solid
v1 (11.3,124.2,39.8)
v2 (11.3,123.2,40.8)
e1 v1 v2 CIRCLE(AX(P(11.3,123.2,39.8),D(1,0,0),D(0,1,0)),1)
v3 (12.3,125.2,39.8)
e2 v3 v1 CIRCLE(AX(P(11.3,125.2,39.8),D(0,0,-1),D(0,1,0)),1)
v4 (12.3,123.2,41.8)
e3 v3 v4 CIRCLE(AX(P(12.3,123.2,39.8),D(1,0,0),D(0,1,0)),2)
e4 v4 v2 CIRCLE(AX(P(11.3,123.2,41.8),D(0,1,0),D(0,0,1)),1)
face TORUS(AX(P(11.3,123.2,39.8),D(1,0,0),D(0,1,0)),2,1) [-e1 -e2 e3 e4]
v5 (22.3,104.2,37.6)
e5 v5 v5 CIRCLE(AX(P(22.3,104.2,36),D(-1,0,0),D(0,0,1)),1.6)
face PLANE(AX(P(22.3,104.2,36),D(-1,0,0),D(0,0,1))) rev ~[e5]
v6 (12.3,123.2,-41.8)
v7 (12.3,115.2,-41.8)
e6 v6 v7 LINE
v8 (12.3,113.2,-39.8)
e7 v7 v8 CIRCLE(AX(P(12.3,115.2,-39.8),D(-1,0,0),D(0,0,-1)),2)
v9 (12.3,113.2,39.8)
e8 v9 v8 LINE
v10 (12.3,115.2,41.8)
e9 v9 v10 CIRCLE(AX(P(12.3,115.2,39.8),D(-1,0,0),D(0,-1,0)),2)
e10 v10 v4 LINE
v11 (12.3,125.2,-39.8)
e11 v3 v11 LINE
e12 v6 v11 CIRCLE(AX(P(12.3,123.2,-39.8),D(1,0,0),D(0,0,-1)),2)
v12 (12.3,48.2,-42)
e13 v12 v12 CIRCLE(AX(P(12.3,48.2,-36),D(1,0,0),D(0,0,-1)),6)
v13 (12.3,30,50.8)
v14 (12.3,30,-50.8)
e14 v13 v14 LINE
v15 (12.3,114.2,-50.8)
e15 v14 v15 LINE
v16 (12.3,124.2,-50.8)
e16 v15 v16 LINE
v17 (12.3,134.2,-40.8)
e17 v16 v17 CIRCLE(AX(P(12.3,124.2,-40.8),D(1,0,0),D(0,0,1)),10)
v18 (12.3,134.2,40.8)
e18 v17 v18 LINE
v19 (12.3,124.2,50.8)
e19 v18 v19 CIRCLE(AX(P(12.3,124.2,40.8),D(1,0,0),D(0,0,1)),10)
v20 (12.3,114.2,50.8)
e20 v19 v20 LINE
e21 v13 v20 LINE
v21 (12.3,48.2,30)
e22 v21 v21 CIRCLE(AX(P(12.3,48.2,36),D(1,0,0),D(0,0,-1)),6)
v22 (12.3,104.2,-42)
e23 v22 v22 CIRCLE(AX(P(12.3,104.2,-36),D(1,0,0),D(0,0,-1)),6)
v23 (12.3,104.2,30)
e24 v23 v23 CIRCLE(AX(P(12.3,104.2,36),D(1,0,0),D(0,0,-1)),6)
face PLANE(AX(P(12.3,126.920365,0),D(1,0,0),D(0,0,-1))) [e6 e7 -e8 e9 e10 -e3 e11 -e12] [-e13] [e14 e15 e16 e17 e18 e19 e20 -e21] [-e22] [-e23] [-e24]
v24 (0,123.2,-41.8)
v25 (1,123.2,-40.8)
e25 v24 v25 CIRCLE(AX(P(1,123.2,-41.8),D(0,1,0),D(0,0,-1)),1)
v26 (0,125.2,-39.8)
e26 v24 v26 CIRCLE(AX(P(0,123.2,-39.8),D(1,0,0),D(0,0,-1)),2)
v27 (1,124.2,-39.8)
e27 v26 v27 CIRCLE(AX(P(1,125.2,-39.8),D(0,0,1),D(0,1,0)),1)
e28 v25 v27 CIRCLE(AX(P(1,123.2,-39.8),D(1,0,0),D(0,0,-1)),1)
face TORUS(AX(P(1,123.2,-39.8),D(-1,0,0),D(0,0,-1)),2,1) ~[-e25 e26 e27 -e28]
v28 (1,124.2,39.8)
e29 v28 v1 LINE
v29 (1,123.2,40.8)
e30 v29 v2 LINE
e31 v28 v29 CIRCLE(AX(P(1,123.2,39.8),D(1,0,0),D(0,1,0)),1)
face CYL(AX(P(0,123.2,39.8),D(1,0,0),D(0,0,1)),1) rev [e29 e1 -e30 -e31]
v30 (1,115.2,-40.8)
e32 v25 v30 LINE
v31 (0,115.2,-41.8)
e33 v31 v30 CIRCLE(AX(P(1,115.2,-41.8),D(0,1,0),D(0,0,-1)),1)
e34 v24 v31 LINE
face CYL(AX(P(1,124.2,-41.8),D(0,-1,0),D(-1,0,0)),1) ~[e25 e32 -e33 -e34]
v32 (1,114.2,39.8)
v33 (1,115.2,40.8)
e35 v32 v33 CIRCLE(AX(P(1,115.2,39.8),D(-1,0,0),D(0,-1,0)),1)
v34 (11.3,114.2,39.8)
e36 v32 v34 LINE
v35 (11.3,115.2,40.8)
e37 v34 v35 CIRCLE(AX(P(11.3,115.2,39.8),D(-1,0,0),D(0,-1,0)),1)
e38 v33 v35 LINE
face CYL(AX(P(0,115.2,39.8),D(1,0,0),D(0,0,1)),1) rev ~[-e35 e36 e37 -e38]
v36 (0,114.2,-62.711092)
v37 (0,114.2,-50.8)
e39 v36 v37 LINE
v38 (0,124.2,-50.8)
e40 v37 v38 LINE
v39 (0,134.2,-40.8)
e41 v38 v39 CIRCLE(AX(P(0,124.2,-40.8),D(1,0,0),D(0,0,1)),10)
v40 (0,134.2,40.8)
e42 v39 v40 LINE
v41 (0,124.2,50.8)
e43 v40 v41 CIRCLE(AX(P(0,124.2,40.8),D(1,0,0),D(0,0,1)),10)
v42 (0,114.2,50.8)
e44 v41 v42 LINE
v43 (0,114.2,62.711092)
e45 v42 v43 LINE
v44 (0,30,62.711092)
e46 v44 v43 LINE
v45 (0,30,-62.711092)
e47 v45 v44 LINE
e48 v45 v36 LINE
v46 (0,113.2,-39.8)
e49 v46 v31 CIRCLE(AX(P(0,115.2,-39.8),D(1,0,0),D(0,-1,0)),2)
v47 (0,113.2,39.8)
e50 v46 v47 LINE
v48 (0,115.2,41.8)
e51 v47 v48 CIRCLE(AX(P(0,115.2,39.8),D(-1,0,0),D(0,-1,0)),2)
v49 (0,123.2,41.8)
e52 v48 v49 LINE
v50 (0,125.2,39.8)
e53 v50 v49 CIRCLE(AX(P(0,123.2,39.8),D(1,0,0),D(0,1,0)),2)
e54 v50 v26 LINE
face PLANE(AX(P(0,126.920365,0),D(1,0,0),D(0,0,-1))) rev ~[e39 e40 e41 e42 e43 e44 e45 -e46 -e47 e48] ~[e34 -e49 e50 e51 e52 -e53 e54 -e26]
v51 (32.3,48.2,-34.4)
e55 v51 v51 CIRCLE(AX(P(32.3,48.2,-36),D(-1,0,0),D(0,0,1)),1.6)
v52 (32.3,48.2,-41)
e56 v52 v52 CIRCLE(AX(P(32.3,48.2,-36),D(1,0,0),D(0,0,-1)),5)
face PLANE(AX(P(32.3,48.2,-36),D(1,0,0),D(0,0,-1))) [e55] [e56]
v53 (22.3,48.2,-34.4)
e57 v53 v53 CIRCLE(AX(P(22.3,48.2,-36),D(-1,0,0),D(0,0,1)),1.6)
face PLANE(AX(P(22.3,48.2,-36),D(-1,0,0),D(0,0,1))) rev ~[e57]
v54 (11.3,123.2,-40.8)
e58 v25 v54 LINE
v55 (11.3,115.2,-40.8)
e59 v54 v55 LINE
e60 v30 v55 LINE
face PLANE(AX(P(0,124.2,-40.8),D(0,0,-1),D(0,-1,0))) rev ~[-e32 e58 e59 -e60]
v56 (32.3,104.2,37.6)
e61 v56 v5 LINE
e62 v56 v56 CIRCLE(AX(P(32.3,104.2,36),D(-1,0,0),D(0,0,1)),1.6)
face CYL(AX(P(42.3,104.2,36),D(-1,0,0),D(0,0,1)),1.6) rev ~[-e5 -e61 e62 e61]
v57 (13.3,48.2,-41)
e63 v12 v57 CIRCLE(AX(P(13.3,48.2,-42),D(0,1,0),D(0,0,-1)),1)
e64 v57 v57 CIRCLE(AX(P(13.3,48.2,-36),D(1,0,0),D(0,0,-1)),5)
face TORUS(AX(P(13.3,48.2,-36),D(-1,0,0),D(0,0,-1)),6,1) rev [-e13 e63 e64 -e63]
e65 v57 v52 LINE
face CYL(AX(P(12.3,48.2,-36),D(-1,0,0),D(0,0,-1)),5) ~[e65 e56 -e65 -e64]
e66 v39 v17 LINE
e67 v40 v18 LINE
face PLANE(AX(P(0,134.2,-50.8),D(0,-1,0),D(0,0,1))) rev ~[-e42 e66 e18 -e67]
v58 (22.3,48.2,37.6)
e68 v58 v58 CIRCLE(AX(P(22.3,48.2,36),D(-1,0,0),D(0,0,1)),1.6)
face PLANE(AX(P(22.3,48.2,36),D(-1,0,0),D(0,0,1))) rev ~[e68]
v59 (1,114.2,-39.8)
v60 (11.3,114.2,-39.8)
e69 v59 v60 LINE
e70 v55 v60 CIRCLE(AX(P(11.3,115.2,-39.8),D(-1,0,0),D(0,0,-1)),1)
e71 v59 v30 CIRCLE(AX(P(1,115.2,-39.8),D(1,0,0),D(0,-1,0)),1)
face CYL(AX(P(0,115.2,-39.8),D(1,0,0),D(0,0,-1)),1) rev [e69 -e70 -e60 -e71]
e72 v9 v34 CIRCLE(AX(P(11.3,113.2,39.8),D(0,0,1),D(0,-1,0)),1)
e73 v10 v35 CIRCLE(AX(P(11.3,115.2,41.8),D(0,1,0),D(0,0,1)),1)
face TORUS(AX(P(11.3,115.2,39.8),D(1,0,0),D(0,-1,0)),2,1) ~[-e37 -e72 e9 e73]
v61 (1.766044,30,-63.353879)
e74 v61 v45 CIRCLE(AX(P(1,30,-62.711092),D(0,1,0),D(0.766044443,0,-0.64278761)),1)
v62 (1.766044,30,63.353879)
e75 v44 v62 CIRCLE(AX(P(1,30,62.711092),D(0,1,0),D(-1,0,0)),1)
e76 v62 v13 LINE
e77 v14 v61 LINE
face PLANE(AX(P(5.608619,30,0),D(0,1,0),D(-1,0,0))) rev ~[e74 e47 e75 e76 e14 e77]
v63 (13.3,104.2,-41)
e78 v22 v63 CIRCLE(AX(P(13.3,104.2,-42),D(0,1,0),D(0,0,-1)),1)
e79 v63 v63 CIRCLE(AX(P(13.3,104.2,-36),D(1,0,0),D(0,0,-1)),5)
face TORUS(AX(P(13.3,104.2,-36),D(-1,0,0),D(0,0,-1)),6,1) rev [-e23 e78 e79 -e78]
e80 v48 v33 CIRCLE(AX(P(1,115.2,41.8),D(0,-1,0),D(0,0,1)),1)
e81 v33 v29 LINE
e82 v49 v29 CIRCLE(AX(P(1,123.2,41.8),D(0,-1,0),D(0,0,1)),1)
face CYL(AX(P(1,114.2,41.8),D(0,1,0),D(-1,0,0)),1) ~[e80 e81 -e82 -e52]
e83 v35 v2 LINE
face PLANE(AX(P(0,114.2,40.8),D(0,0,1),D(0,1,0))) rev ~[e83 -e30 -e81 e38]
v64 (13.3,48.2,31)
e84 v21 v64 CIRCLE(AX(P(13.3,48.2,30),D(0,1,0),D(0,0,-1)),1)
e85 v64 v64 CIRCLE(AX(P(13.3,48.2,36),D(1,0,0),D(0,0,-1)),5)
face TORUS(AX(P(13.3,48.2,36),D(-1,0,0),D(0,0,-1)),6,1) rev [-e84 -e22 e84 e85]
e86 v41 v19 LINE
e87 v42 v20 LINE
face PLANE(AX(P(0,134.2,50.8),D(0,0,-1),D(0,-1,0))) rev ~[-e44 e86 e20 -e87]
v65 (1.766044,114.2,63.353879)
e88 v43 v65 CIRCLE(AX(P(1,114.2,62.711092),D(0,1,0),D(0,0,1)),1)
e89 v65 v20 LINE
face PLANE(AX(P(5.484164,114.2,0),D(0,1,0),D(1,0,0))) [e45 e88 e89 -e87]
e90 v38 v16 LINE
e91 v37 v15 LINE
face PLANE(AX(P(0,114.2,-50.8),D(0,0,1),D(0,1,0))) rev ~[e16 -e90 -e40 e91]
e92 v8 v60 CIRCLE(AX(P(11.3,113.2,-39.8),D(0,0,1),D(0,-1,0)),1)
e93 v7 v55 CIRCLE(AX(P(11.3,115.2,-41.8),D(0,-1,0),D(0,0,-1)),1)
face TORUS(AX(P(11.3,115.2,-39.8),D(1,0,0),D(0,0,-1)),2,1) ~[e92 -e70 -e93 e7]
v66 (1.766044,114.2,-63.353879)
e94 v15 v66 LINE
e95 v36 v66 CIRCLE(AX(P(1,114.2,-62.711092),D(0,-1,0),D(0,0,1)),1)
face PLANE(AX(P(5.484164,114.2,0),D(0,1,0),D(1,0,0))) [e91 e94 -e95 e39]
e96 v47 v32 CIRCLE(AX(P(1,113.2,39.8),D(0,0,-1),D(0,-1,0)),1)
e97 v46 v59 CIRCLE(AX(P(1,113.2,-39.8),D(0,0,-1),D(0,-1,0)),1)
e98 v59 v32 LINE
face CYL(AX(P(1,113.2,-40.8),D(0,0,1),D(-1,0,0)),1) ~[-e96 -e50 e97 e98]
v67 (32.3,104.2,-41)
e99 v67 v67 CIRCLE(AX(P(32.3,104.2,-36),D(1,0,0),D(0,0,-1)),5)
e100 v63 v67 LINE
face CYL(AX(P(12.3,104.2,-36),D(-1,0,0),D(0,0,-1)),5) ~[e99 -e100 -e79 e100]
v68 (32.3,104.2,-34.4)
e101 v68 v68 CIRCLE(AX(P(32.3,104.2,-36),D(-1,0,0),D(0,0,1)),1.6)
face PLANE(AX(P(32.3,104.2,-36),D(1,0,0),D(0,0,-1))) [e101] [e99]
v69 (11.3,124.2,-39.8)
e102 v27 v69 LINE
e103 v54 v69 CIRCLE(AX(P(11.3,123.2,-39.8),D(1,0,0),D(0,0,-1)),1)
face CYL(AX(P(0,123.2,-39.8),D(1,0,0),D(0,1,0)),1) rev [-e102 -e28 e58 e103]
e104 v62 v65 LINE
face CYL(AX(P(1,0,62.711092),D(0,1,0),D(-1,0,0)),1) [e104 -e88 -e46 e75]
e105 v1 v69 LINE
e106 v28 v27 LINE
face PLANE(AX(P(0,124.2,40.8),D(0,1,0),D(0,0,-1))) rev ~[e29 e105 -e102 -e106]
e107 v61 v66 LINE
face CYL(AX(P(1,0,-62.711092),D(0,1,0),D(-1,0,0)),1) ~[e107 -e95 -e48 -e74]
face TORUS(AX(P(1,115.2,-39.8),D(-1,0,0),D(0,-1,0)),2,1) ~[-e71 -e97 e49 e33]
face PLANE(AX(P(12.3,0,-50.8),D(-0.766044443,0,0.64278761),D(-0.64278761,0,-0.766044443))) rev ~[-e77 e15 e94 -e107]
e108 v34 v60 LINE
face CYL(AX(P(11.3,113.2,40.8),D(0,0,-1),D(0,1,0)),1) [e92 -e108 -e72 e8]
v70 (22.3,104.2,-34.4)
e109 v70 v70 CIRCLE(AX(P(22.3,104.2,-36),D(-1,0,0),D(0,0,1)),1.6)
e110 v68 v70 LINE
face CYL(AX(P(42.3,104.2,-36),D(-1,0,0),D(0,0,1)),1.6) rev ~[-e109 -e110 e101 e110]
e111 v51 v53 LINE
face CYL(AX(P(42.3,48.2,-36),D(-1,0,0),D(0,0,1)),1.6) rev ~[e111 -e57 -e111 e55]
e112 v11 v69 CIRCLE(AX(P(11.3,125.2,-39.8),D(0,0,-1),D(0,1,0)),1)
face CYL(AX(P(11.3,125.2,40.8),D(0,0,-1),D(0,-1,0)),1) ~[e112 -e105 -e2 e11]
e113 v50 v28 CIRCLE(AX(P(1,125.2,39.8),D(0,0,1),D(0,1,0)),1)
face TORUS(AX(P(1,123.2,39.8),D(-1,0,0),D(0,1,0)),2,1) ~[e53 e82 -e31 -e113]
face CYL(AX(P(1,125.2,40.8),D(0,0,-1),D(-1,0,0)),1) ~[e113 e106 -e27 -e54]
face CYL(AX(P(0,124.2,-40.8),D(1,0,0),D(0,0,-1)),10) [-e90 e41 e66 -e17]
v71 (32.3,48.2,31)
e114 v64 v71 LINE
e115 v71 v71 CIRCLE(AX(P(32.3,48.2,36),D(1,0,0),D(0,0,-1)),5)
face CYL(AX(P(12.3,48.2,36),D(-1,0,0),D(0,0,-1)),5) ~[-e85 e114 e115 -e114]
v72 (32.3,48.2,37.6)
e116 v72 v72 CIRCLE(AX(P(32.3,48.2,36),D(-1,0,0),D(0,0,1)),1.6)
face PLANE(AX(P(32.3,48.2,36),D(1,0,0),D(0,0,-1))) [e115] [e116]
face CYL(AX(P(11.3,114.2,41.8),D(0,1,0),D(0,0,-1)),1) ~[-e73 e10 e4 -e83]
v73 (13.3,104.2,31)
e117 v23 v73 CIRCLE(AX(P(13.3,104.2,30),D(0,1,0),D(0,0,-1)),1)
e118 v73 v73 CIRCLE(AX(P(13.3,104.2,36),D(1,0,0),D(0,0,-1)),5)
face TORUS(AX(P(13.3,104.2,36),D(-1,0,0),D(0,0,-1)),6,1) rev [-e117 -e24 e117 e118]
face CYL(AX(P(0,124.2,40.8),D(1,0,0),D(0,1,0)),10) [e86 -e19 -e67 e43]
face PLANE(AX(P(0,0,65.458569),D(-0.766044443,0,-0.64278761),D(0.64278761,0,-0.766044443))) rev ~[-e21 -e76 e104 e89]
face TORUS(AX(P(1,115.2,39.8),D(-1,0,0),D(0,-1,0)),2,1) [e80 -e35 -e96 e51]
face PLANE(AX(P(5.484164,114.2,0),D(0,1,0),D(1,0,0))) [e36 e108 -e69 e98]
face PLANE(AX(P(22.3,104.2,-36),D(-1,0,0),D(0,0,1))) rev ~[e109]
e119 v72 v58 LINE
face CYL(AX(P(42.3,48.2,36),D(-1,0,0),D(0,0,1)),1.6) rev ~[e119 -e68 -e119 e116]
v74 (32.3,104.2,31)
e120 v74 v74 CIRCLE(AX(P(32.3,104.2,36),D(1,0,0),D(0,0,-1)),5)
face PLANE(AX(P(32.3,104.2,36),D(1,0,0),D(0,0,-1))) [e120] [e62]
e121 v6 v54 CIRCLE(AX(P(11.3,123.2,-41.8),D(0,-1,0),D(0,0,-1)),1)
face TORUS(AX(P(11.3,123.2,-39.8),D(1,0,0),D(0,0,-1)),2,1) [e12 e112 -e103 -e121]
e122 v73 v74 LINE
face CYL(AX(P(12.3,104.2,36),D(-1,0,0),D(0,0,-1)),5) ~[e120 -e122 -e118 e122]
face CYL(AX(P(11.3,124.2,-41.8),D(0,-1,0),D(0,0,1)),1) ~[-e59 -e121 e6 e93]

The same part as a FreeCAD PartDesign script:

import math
import FreeCAD as App
import Part
import Sketcher

V = App.Vector
Q = App.Units.Quantity


def edges_at(feature, points):
    """Names of the edges that pass closest to the given points."""
    edges = feature.Shape.Edges
    near = lambda p: min(range(len(edges)), key=lambda i: edges[i].distToShape(Part.Vertex(*p))[0])
    return sorted({f"Edge{near(p) + 1}" for p in points})

doc = App.newDocument("Part")
body = doc.addObject("PartDesign::Body", "Body")

# Sketch on XZ plane
sketch1 = doc.addObject("Sketcher::SketchObject", "Sketch")
body.addObject(sketch1)
sketch1.AttachmentSupport = (doc.XZ_Plane, [""])
sketch1.MapMode = "FlatFace"
sketch1.addGeometry([
    Part.LineSegment(V(12, 51, 0), V(12, -51, 0)),
    Part.LineSegment(V(12, -51, 0), V(0, -65, 0)),
    Part.LineSegment(V(0, -65, 0), V(0, 65, 0)),
    Part.LineSegment(V(0, 65, 0), V(12, 51, 0)),
], False)
sketch1.addConstraint([
    Sketcher.Constraint("Coincident", 0, 2, 1, 1),
    Sketcher.Constraint("Coincident", 1, 2, 2, 1),
    Sketcher.Constraint("Coincident", 2, 2, 3, 1),
    Sketcher.Constraint("Coincident", 3, 2, 0, 1),
    Sketcher.Constraint("Vertical", 0),
    Sketcher.Constraint("Vertical", 2),
    Sketcher.Constraint("Symmetric", 1, 2, 2, 2, -1, 1),
    Sketcher.Constraint("Equal", 1, 3),
    Sketcher.Constraint("Angle", 1, Q("-130 deg")),
    Sketcher.Constraint("DistanceY", 0, 2, 0, 1, 101.6),
    Sketcher.Constraint("DistanceX", -1, 1, 0, 2, 12.3),
])
pad1 = doc.addObject("PartDesign::Pad", "Pad")
body.addObject(pad1)
pad1.Profile = sketch1
pad1.Length = 114.2
pad1.Reversed = True

# Sketch on YZ plane
sketch2 = doc.addObject("Sketcher::SketchObject", "Sketch001")
body.addObject(sketch2)
sketch2.AttachmentSupport = (doc.YZ_Plane, [""])
sketch2.MapMode = "FlatFace"
sketch2.AttachmentOffset = App.Placement(V(0, 0, 12.3), App.Rotation())
sketch2.addGeometry([
    Part.Circle(V(104, 36, 0), V(0, 0, 1), 5),
    Part.Circle(V(104, -36, 0), V(0, 0, 1), 5),
    Part.Circle(V(48, -36, 0), V(0, 0, 1), 5),
    Part.Circle(V(48, 36, 0), V(0, 0, 1), 5),
], False)
sketch2.addConstraint([
    Sketcher.Constraint("Equal", 0, 1),
    Sketcher.Constraint("Equal", 1, 2),
    Sketcher.Constraint("Equal", 2, 3),
    Sketcher.Constraint("Symmetric", 0, 3, 1, 3, -1),
    Sketcher.Constraint("Symmetric", 2, 3, 3, 3, -1),
    Sketcher.Constraint("Horizontal", 1, 3, 2, 3),
    Sketcher.Constraint("Diameter", 0, 10.0),
    Sketcher.Constraint("DistanceY", -1, 1, 0, 3, 36.0),
    Sketcher.Constraint("DistanceX", 2, 3, 1, 3, 56.0),
    Sketcher.Constraint("DistanceX", -1, 1, 0, 3, 104.2),
])
pad2 = doc.addObject("PartDesign::Pad", "Pad001")
body.addObject(pad2)
pad2.Profile = sketch2
pad2.Length = 20

# Sketch on YZ plane
sketch3 = doc.addObject("Sketcher::SketchObject", "Sketch002")
body.addObject(sketch3)
sketch3.AttachmentSupport = (doc.YZ_Plane, [""])
sketch3.MapMode = "FlatFace"
sketch3.AttachmentOffset = App.Placement(V(0, 0, 32.3), App.Rotation())
sketch3.addGeometry([
    Part.Circle(V(104.2, 36, 0), V(0, 0, 1), 1.6),
    Part.Circle(V(104.2, -36, 0), V(0, 0, 1), 1.6),
    Part.Circle(V(48.2, -36, 0), V(0, 0, 1), 1.6),
    Part.Circle(V(48.2, 36, 0), V(0, 0, 1), 1.6),
], False)
sketch3.addConstraint([
    Sketcher.Constraint("Equal", 0, 1),
    Sketcher.Constraint("Equal", 1, 2),
    Sketcher.Constraint("Equal", 2, 3),
    Sketcher.Constraint("Symmetric", 0, 3, 1, 3, -1),
    Sketcher.Constraint("Symmetric", 2, 3, 3, 3, -1),
    Sketcher.Constraint("Horizontal", 1, 3, 2, 3),
    Sketcher.Constraint("Diameter", 0, 3.2),
    Sketcher.Constraint("DistanceY", -1, 1, 0, 3, 36.0),
    Sketcher.Constraint("DistanceX", 2, 3, 1, 3, 56.0),
    Sketcher.Constraint("DistanceX", -1, 1, 0, 3, 104.2),
])
doc.recompute()
hole = doc.addObject("PartDesign::Hole", "Hole")
body.addObject(hole)
hole.Profile = sketch3
hole.ThreadType = "None"
hole.Diameter = 3.2
hole.DepthType = "Dimension"
hole.Depth = 10
hole.DrillPoint = "Flat"

# Sketch on YZ plane
sketch4 = doc.addObject("Sketcher::SketchObject", "Sketch003")
body.addObject(sketch4)
sketch4.AttachmentSupport = (doc.YZ_Plane, [""])
sketch4.MapMode = "FlatFace"
sketch4.addGeometry([
    Part.LineSegment(V(114, 51, 0), V(114, 41, 0)),  # 0
    Part.LineSegment(V(114, 41, 0), V(124, 41, 0)),  # 1
    Part.LineSegment(V(124, 41, 0), V(124, -41, 0)),  # 2
    Part.LineSegment(V(124, -41, 0), V(114, -41, 0)),  # 3
    Part.LineSegment(V(114, -41, 0), V(114, -51, 0)),  # 4
    Part.LineSegment(V(114, -51, 0), V(134, -51, 0)),  # 5
    Part.LineSegment(V(134, -51, 0), V(134, 51, 0)),  # 6
    Part.LineSegment(V(134, 51, 0), V(114, 51, 0)),  # 7
], False)
sketch4.addConstraint([
    Sketcher.Constraint("Coincident", 0, 2, 1, 1),
    Sketcher.Constraint("Coincident", 1, 2, 2, 1),
    Sketcher.Constraint("Coincident", 2, 2, 3, 1),
    Sketcher.Constraint("Coincident", 3, 2, 4, 1),
    Sketcher.Constraint("Coincident", 4, 2, 5, 1),
    Sketcher.Constraint("Coincident", 5, 2, 6, 1),
    Sketcher.Constraint("Coincident", 6, 2, 7, 1),
    Sketcher.Constraint("Coincident", 7, 2, 0, 1),
    Sketcher.Constraint("Vertical", 0),
    Sketcher.Constraint("Horizontal", 1),
    Sketcher.Constraint("Vertical", 2),
    Sketcher.Constraint("Horizontal", 3),
    Sketcher.Constraint("Vertical", 4),
    Sketcher.Constraint("Horizontal", 5),
    Sketcher.Constraint("Vertical", 6),
    Sketcher.Constraint("Horizontal", 7),
    Sketcher.Constraint("Symmetric", 0, 2, 3, 2, -1),
    Sketcher.Constraint("Equal", 3, 0),
    Sketcher.Constraint("Equal", 0, 4),
    Sketcher.Constraint("DistanceX", 1, 1, 1, 2, 10.0),
    Sketcher.Constraint("DistanceX", 5, 1, 5, 2, 20.0),
    Sketcher.Constraint("DistanceY", 2, 2, 2, 1, 81.6),
    Sketcher.Constraint("DistanceX", -1, 1, 0, 2, 114.2),
])
pad3 = doc.addObject("PartDesign::Pad", "Pad002")
body.addObject(pad3)
pad3.Profile = sketch4
pad3.Length = 12.3
doc.recompute()

fillet = doc.addObject("PartDesign::Fillet", "Fillet")
body.addObject(fillet)
fillet.Base = (pad3, edges_at(pad3, [(6.15, 134.2, -50.8), (6.15, 134.2, 50.8)]))
fillet.Radius = 10
doc.recompute()

fillet2 = doc.addObject("PartDesign::Fillet", "Fillet001")
body.addObject(fillet2)
fillet2.Base = (fillet, edges_at(fillet, [
    (0, 57.1, 65.459),
    (12.3, 119.2, -40.8),
    (0, 119.2, -40.8),
    (12.3, 124.2, 0),
    (0, 124.2, 0),
    (12.3, 114.2, 0),
    (12.3, 48.2, -31),
    (12.3, 48.2, 41),
    (12.3, 104.2, 41),
    (12.3, 104.2, -31),
    (12.3, 119.2, 40.8),
    (0, 119.2, 40.8),
    (6.15, 114.2, -40.8),
    (6.15, 124.2, -40.8),
    (6.15, 124.2, 40.8),
    (6.15, 114.2, 40.8),
    (0, 57.1, -65.459),
    (0, 114.2, 0),
]))
fillet2.Radius = 1

# Sketch on XZ plane
sketch5 = doc.addObject("Sketcher::SketchObject", "Sketch004")
body.addObject(sketch5)
sketch5.AttachmentSupport = (doc.XZ_Plane, [""])
sketch5.MapMode = "FlatFace"
sketch5.addGeometry([
    Part.LineSegment(V(1.8, -63.4, 0), V(12.3, -50.8, 0)),  # 0
    Part.LineSegment(V(12.3, -50.8, 0), V(12.3, 50.8, 0)),  # 1
    Part.LineSegment(V(12.3, 50.8, 0), V(1.8, 63.4, 0)),  # 2
    Part.ArcOfCircle(Part.Circle(V(1, 62.7, 0), V(0, 0, 1), 1), math.radians(40), math.radians(180)),  # 3
    Part.LineSegment(V(0, 62.7, 0), V(0, -62.7, 0)),  # 4
    Part.ArcOfCircle(Part.Circle(V(1, -62.7, 0), V(0, 0, 1), 1), math.radians(180), math.radians(320)),  # 5
], False)
sketch5.addConstraint([
    Sketcher.Constraint("Coincident", 0, 2, 1, 1),
    Sketcher.Constraint("Coincident", 1, 2, 2, 1),
    Sketcher.Constraint("Tangent", 2, 2, 3, 1),
    Sketcher.Constraint("Tangent", 3, 2, 4, 1),
    Sketcher.Constraint("Tangent", 4, 2, 5, 1),
    Sketcher.Constraint("Tangent", 5, 2, 0, 1),
    Sketcher.Constraint("Vertical", 1),
    Sketcher.Constraint("Vertical", 4),
    Sketcher.Constraint("Equal", 3, 5),
    Sketcher.Constraint("Symmetric", 3, 2, 4, 2, -1, 1),
    Sketcher.Constraint("Vertical", 2, 2, 5, 2),
    Sketcher.Constraint("Radius", 3, 1.0),
    Sketcher.Constraint("Angle", 0, Q("50 deg")),
    Sketcher.Constraint("DistanceY", 1, 1, 1, 2, 101.6),
    Sketcher.Constraint("DistanceX", -1, 1, 0, 2, 12.3),
])
pocket1 = doc.addObject("PartDesign::Pocket", "Pocket")
body.addObject(pocket1)
pocket1.Profile = sketch5
pocket1.Length = 30

doc.recompute()
